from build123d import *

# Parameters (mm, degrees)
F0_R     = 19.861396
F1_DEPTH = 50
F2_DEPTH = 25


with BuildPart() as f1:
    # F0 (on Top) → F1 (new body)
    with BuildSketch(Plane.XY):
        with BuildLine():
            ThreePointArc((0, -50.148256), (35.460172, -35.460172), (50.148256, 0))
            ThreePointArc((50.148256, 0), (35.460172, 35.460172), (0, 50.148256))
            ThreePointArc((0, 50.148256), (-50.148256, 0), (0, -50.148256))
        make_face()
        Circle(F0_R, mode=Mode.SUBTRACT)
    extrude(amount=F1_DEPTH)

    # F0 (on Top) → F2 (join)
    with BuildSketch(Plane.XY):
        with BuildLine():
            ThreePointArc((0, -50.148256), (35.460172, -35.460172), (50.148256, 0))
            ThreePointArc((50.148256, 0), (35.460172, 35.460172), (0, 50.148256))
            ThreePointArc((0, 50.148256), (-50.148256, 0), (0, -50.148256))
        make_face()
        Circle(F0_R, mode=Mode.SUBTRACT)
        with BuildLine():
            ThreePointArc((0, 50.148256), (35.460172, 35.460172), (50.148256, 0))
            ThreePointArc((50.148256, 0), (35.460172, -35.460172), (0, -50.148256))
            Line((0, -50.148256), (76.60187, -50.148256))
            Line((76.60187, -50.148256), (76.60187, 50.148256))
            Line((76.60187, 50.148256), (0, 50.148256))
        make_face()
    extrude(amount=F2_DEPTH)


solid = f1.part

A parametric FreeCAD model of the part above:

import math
import FreeCAD as App
import Part
import Sketcher
from FreeCAD import Vector

doc = App.newDocument("Part")
body = doc.addObject("PartDesign::Body", "Body")

# Sketch on XY plane
sketch1 = body.newObject("Sketcher::SketchObject", "Sketch")
sketch1.AttachmentSupport = (doc.getObject("XY_Plane"), [""])
sketch1.MapMode = "FlatFace"
sketch1.addGeometry([
    Part.ArcOfCircle(Part.Circle(Vector(0, 0, 0), Vector(0, 0, 1), 50), math.radians(-90), math.radians(0)),
    Part.ArcOfCircle(Part.Circle(Vector(0, 0, 0), Vector(0, 0, 1), 50), math.radians(0), math.radians(90)),
    Part.ArcOfCircle(Part.Circle(Vector(0, 0, 0), Vector(0, 0, 1), 50), math.radians(90), math.radians(270)),
    Part.Circle(Vector(0, 0, 0), Vector(0, 0, 1), 20),
], False)
sketch1.addConstraint([
    Sketcher.Constraint("Tangent", 0, 2, 1, 1),
    Sketcher.Constraint("Tangent", 1, 2, 2, 1),
    Sketcher.Constraint("Tangent", 2, 2, 0, 1),
    Sketcher.Constraint("Coincident", 0, 3, -1, 1),
    Sketcher.Constraint("Coincident", 3, 3, -1, 1),
    Sketcher.Constraint("PointOnObject", 0, 2, -1),
    Sketcher.Constraint("PointOnObject", 1, 2, -2),
    Sketcher.Constraint("PointOnObject", 2, 2, -2),
    Sketcher.Constraint("Diameter", 3, 39.722792),
    Sketcher.Constraint("Radius", 0, 50.148256),
])
pad1 = body.newObject("PartDesign::Pad", "Pad")
pad1.Profile = sketch1
pad1.Length = 50

# Sketch on XY plane
sketch2 = body.newObject("Sketcher::SketchObject", "Sketch001")
sketch2.AttachmentSupport = (doc.getObject("XY_Plane"), [""])
sketch2.MapMode = "FlatFace"
sketch2.addGeometry([
    Part.ArcOfCircle(Part.Circle(Vector(0, 0, 0), Vector(0, 0, 1), 50), math.radians(90), math.radians(270)),  # 0
    Part.LineSegment(Vector(0, -50, 0), Vector(77, -50, 0)),  # 1
    Part.LineSegment(Vector(77, -50, 0), Vector(77, 50, 0)),  # 2
    Part.LineSegment(Vector(77, 50, 0), Vector(0, 50, 0)),  # 3
    Part.Circle(Vector(0, 0, 0), Vector(0, 0, 1), 20),  # 4
], False)
sketch2.addConstraint([
    Sketcher.Constraint("Tangent", 0, 2, 1, 1),
    Sketcher.Constraint("Coincident", 1, 2, 2, 1),
    Sketcher.Constraint("Coincident", 2, 2, 3, 1),
    Sketcher.Constraint("Tangent", 3, 2, 0, 1),
    Sketcher.Constraint("Horizontal", 1),
    Sketcher.Constraint("Vertical", 2),
    Sketcher.Constraint("Horizontal", 3),
    Sketcher.Constraint("Coincident", 0, 3, -1, 1),
    Sketcher.Constraint("Coincident", 4, 3, -1, 1),
    Sketcher.Constraint("Diameter", 4, 39.722792),
    Sketcher.Constraint("Radius", 0, 50.148256),
    Sketcher.Constraint("DistanceX", 1, 1, 1, 2, 76.60187),
])
pad2 = body.newObject("PartDesign::Pad", "Pad001")
pad2.Profile = sketch2
pad2.Length = 25

doc.recompute()
